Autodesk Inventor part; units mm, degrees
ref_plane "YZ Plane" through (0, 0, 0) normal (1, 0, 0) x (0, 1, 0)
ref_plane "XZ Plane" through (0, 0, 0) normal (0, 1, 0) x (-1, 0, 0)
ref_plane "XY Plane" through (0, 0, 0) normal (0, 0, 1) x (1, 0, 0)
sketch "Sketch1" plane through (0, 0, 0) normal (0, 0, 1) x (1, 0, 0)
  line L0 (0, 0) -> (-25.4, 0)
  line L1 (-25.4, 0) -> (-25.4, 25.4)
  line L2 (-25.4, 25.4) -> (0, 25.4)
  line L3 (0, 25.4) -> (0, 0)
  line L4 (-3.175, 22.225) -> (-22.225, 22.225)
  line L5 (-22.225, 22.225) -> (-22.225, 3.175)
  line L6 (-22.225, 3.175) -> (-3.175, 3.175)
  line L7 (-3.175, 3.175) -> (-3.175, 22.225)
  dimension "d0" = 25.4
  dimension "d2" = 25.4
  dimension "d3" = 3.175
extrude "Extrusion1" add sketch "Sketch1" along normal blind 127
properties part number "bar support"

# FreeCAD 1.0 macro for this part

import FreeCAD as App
import Part
import Sketcher
Q = App.Units.Quantity


def add_polygon(sketch, points):
    """Adds a closed chain of lines whose ends are joined by coincident constraints."""
    first, n = sketch.GeometryCount, len(points)
    for a, b in zip(points, points[1:] + points[:1]):
        sketch.addGeometry(Part.LineSegment(App.Vector(*a, 0), App.Vector(*b, 0)), False)
    for i in range(n):
        sketch.addConstraint(Sketcher.Constraint("Coincident", first + i, 2, first + (i + 1) % n, 1))

doc = App.newDocument("Part")
body = doc.addObject("PartDesign::Body", "Body")

# Sketch on XY plane
sketch1 = body.newObject("Sketcher::SketchObject", "Sketch")
sketch1.AttachmentSupport = (doc.getObject("XY_Plane"), [""])
sketch1.MapMode = "FlatFace"
add_polygon(sketch1, [(-25, 0), (0, 0), (0, 25), (-25, 25)])  # lines 0-3
add_polygon(sketch1, [(-22, 22), (-3, 22), (-3, 3), (-22, 3)])  # lines 4-7
sketch1.addConstraint([
    Sketcher.Constraint("Horizontal", 0),
    Sketcher.Constraint("Vertical", 1),
    Sketcher.Constraint("Horizontal", 2),
    Sketcher.Constraint("Vertical", 3),
    Sketcher.Constraint("Horizontal", 4),
    Sketcher.Constraint("Vertical", 5),
    Sketcher.Constraint("Horizontal", 6),
    Sketcher.Constraint("Vertical", 7),
    Sketcher.Constraint("Coincident", 0, 2, -1, 1),
    Sketcher.Constraint("Equal", 2, 1),
    Sketcher.Constraint("Equal", 6, 5),
    Sketcher.Constraint("DistanceX", 0, 1, 0, 2, Q("1 in")),
    Sketcher.Constraint("DistanceX", 4, 2, -1, 1, Q("0.125 in")),
    Sketcher.Constraint("DistanceY", -1, 1, 5, 2, Q("0.125 in")),
    Sketcher.Constraint("DistanceY", 4, 2, 1, 2, Q("0.125 in")),
])
pad1 = body.newObject("PartDesign::Pad", "Pad")
pad1.Profile = sketch1
pad1.Length = Q("5 in")

doc.recompute()
